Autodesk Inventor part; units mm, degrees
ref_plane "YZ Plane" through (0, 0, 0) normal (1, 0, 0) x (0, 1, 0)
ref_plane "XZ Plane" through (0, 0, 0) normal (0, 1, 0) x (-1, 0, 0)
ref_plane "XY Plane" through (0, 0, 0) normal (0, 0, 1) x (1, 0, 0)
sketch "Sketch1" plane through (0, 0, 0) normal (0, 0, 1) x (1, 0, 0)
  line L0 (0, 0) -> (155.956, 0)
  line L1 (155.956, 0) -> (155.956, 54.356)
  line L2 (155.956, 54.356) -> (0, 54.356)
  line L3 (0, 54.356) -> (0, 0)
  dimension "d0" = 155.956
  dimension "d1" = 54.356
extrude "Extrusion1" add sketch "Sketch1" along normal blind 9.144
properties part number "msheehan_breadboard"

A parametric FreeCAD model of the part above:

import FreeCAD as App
import Part
import Sketcher
from FreeCAD import Vector
Q = App.Units.Quantity

doc = App.newDocument("Part")
body = doc.addObject("PartDesign::Body", "Body")

# Sketch on XY plane
sketch1 = doc.addObject("Sketcher::SketchObject", "Sketch")
body.addObject(sketch1)
sketch1.AttachmentSupport = (doc.XY_Plane, [""])
sketch1.MapMode = "FlatFace"
sketch1.addGeometry([
    Part.LineSegment(Vector(0, 54, 0), Vector(0, 0, 0)),
    Part.LineSegment(Vector(0, 0, 0), Vector(156, 0, 0)),
    Part.LineSegment(Vector(156, 0, 0), Vector(156, 54, 0)),
    Part.LineSegment(Vector(156, 54, 0), Vector(0, 54, 0)),
], False)
sketch1.addConstraint([
    Sketcher.Constraint("Coincident", 0, 2, 1, 1),
    Sketcher.Constraint("Coincident", 1, 2, 2, 1),
    Sketcher.Constraint("Coincident", 2, 2, 3, 1),
    Sketcher.Constraint("Coincident", 3, 2, 0, 1),
    Sketcher.Constraint("Vertical", 0),
    Sketcher.Constraint("Horizontal", 1),
    Sketcher.Constraint("Vertical", 2),
    Sketcher.Constraint("Horizontal", 3),
    Sketcher.Constraint("Coincident", 0, 2, -1, 1),
    Sketcher.Constraint("DistanceX", 1, 1, 1, 2, Q("6.14 in")),
    Sketcher.Constraint("DistanceY", 0, 2, 0, 1, Q("2.14 in")),
])
pad1 = doc.addObject("PartDesign::Pad", "Pad")
body.addObject(pad1)
pad1.Profile = sketch1
pad1.Length = Q("0.36 in")

doc.recompute()
